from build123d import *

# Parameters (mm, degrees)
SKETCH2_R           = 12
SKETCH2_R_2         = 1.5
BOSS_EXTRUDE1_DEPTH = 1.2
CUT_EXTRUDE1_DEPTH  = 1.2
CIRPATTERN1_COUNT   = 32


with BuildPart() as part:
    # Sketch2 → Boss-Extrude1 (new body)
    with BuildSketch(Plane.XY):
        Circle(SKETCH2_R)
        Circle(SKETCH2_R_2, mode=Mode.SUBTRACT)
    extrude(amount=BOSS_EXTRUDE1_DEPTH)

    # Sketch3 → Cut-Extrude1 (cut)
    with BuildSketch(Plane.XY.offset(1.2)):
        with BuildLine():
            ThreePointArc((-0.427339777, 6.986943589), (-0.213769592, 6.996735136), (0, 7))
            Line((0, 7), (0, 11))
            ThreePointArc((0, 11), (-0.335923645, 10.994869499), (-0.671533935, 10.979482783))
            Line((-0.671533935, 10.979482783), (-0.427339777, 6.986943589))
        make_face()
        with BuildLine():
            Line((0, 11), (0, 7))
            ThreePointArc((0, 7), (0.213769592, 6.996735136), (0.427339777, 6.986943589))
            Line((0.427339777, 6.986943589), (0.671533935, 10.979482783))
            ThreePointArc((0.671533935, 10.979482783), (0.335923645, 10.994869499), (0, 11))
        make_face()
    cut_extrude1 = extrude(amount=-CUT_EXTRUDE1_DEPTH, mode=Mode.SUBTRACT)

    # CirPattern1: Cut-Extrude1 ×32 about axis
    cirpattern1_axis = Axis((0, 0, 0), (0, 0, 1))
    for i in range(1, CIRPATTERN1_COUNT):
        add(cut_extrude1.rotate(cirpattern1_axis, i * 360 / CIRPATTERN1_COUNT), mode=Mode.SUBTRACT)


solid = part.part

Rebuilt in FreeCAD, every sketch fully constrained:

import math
import FreeCAD as App
import Part
import Sketcher

V = App.Vector
Q = App.Units.Quantity

doc = App.newDocument("Part")
body = doc.addObject("PartDesign::Body", "Body")

# Sketch on XY plane
sketch1 = body.newObject("Sketcher::SketchObject", "Sketch")
sketch1.AttachmentSupport = (doc.getObject("XY_Plane"), [""])
sketch1.MapMode = "FlatFace"
sketch1.addGeometry(Part.Circle(V(0, 0, 0), V(0, 0, 1), 12), False)
sketch1.addGeometry(Part.Circle(V(0, 0, 0), V(0, 0, 1), 1.5), False)
sketch1.addConstraint(Sketcher.Constraint("Coincident", 0, 3, -1, 1))
sketch1.addConstraint(Sketcher.Constraint("Coincident", 1, 3, -1, 1))
sketch1.addConstraint(Sketcher.Constraint("Diameter", 0, Q("24 mm")))
sketch1.addConstraint(Sketcher.Constraint("Diameter", 1, Q("3 mm")))
pad1 = body.newObject("PartDesign::Pad", "Pad")
pad1.Profile = sketch1
pad1.Length = 1.2

# Sketch on XY plane
sketch2 = body.newObject("Sketcher::SketchObject", "Sketch001")
sketch2.AttachmentSupport = (doc.getObject("XY_Plane"), [""])
sketch2.MapMode = "FlatFace"
sketch2.AttachmentOffset = App.Placement(V(0, 0, 1.2), App.Rotation())
sketch2.addGeometry(Part.ArcOfCircle(Part.Circle(V(0, 0, 0), V(0, 0, 1), 7), math.radians(90), math.radians(93.5)), False)
sketch2.addGeometry(Part.ArcOfCircle(Part.Circle(V(0, 0, 0), V(0, 0, 1), 7), math.radians(86.5), math.radians(90)), False)
sketch2.addGeometry(Part.LineSegment(V(0.43, 6.99, 0), V(0.67, 10.98, 0)), False)
sketch2.addGeometry(Part.ArcOfCircle(Part.Circle(V(0, 0, 0), V(0, 0, 1), 11), math.radians(86.5), math.radians(90)), False)
sketch2.addGeometry(Part.ArcOfCircle(Part.Circle(V(0, 0, 0), V(0, 0, 1), 11), math.radians(90), math.radians(93.5)), False)
sketch2.addGeometry(Part.LineSegment(V(-0.67, 10.98, 0), V(-0.43, 6.99, 0)), False)
sketch2.addConstraint(Sketcher.Constraint("Tangent", 0, 1, 1, 2))
sketch2.addConstraint(Sketcher.Constraint("Coincident", 1, 1, 2, 1))
sketch2.addConstraint(Sketcher.Constraint("Coincident", 2, 2, 3, 1))
sketch2.addConstraint(Sketcher.Constraint("Tangent", 3, 2, 4, 1))
sketch2.addConstraint(Sketcher.Constraint("Coincident", 4, 2, 5, 1))
sketch2.addConstraint(Sketcher.Constraint("Coincident", 5, 2, 0, 2))
sketch2.addConstraint(Sketcher.Constraint("Coincident", 0, 3, -1, 1))
sketch2.addConstraint(Sketcher.Constraint("Coincident", 3, 3, -1, 1))
sketch2.addConstraint(Sketcher.Constraint("Equal", 0, 1))
sketch2.addConstraint(Sketcher.Constraint("Equal", 3, 4))
sketch2.addConstraint(Sketcher.Constraint("PointOnObject", 0, 1, -2))
sketch2.addConstraint(Sketcher.Constraint("PointOnObject", 3, 2, -2))
sketch2.addConstraint(Sketcher.Constraint("Horizontal", 2, 2, 4, 2))
sketch2.addConstraint(Sketcher.Constraint("Horizontal", 1, 1, 5, 2))
sketch2.addConstraint(Sketcher.Constraint("Radius", 0, Q("7 mm")))
sketch2.addConstraint(Sketcher.Constraint("Radius", 3, Q("11.000001 mm")))
sketch2.addConstraint(Sketcher.Constraint("Angle", 2, Q("86.5 deg")))
sketch2.addConstraint(Sketcher.Constraint("DistanceX", -1, 1, 1, 1, Q("0.42734 mm")))
pocket1 = body.newObject("PartDesign::Pocket", "Pocket")
pocket1.Profile = sketch2
pocket1.Length = 1.2
doc.recompute()

polarpattern = body.newObject("PartDesign::PolarPattern", "PolarPattern")
polarpattern.Originals = [pocket1]
polarpattern.Axis = (doc.getObject("Z_Axis"), [""])
polarpattern.Angle = 360
polarpattern.Occurrences = 32
body.Tip = polarpattern

doc.recompute()
